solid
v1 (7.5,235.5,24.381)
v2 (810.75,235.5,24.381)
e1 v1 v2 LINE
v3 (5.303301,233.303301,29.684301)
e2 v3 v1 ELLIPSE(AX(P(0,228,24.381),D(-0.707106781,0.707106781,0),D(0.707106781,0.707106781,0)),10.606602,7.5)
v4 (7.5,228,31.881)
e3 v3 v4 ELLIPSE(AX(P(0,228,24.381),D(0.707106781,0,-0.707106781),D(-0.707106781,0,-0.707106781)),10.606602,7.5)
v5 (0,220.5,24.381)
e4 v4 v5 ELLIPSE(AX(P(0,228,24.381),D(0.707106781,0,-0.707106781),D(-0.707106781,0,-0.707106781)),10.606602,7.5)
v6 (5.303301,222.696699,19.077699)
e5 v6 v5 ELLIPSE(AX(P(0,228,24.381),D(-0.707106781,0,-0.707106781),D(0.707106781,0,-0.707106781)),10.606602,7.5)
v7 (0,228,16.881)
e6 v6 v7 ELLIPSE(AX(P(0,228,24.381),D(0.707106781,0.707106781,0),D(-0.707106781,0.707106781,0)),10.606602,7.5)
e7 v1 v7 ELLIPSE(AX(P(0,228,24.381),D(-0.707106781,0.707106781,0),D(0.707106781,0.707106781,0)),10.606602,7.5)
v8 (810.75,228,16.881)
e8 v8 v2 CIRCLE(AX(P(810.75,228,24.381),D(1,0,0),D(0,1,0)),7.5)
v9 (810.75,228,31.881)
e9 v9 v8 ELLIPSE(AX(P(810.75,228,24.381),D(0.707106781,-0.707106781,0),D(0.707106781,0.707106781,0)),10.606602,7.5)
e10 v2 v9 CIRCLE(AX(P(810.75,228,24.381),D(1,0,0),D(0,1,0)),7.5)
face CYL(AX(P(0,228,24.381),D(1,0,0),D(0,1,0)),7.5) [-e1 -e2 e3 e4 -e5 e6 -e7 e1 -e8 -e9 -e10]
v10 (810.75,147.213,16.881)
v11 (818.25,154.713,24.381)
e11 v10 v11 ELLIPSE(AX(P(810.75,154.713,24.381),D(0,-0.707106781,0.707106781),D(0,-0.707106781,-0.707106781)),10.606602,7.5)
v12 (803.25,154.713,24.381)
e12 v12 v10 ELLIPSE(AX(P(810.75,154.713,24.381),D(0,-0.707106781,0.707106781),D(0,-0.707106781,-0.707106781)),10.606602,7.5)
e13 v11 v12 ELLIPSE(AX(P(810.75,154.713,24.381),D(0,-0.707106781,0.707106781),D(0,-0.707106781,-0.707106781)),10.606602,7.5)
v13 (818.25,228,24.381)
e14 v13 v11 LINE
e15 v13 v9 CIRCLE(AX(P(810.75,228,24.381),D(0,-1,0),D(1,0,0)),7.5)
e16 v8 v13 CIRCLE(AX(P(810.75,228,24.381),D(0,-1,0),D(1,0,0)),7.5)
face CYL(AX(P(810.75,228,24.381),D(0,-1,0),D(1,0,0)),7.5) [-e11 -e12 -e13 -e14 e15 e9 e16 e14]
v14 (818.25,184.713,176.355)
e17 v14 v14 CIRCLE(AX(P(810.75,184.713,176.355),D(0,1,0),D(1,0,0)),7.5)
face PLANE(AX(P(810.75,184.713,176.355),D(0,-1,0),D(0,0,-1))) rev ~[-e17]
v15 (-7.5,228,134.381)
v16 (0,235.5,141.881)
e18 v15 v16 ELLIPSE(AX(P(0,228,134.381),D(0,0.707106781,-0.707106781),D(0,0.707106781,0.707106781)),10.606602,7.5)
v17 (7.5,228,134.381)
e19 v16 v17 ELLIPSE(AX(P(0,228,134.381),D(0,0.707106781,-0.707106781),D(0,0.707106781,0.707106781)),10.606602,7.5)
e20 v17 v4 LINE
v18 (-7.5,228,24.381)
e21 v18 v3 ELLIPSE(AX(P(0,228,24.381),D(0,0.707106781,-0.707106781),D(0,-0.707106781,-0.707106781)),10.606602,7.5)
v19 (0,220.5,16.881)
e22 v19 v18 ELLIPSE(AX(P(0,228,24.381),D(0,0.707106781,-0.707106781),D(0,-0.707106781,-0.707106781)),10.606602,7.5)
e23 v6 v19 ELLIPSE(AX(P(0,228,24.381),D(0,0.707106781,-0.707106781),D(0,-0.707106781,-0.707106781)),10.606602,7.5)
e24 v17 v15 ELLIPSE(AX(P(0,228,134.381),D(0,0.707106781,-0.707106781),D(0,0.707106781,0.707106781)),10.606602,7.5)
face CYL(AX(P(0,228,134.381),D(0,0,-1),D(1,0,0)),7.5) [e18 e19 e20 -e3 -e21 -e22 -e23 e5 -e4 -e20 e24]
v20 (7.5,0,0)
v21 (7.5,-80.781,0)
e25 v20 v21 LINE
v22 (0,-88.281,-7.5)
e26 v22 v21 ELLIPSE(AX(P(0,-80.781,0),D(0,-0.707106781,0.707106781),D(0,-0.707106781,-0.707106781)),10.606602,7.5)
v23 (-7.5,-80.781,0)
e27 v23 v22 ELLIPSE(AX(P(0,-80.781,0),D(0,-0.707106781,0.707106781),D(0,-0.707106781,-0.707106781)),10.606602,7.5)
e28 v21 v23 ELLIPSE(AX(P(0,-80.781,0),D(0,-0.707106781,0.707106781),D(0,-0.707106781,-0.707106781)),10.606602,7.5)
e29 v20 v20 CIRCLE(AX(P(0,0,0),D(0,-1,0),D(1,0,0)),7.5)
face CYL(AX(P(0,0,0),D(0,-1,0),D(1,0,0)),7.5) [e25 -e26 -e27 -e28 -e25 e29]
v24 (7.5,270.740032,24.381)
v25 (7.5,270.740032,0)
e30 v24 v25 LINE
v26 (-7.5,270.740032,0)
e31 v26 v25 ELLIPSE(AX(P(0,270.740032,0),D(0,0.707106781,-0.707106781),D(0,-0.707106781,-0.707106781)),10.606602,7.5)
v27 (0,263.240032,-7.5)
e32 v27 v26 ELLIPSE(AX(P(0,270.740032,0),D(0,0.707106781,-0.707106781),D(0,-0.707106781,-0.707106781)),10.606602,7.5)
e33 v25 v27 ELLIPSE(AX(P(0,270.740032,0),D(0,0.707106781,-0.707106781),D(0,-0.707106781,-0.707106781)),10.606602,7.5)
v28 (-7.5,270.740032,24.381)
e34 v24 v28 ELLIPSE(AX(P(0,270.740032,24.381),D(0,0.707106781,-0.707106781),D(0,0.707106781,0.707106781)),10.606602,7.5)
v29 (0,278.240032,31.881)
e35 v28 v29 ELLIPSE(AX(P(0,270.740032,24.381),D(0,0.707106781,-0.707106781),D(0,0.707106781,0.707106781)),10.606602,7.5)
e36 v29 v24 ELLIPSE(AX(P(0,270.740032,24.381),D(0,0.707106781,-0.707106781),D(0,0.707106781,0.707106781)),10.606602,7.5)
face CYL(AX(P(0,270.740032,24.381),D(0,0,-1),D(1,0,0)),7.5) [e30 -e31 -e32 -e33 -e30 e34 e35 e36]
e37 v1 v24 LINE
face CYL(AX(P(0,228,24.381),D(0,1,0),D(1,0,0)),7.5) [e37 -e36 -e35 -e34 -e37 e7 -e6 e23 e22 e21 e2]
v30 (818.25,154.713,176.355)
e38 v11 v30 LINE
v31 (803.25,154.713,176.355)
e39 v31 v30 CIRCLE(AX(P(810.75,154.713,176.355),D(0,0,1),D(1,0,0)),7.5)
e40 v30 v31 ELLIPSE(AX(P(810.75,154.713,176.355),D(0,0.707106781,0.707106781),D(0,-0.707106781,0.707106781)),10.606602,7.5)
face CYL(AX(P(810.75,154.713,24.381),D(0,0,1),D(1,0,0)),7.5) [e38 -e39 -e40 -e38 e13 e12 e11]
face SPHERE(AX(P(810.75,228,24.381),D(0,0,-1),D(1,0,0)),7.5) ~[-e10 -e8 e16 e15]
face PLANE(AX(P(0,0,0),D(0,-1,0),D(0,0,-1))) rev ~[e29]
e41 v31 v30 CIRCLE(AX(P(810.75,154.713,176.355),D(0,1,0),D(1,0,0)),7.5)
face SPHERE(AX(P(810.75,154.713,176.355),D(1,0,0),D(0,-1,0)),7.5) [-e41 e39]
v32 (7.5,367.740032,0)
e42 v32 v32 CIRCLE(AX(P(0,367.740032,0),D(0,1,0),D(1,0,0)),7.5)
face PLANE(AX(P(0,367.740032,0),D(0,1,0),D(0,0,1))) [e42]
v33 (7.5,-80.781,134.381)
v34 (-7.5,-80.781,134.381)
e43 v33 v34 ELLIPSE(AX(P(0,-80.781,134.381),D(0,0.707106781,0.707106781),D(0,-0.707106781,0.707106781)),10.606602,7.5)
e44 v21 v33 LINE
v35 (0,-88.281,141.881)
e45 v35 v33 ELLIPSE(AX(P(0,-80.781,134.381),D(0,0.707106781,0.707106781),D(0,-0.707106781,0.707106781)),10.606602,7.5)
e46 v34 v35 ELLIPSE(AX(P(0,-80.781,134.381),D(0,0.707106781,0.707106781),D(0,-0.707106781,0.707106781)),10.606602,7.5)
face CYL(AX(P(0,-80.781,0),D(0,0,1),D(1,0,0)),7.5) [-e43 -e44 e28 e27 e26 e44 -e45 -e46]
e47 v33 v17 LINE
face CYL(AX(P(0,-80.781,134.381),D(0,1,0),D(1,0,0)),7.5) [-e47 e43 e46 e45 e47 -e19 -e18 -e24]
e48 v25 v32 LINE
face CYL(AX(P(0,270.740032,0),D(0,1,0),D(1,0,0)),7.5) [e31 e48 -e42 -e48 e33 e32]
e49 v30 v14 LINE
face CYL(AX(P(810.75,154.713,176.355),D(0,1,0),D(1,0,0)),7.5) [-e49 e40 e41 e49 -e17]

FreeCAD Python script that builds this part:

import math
import FreeCAD as App
import Part
import Sketcher
Q = App.Units.Quantity

doc = App.newDocument("Part")
body = doc.addObject("PartDesign::Body", "Body")

# Sketch on XZ plane
sketch1 = body.newObject("Sketcher::SketchObject", "Sketch")
sketch1.AttachmentSupport = (doc.getObject("XZ_Plane"), [""])
sketch1.MapMode = "FlatFace"
sketch1.addGeometry(Part.Circle(App.Vector(0, 0, 0), App.Vector(0, 0, 1), 8), False)
sketch1.addConstraint([
    Sketcher.Constraint("Coincident", 0, 3, -1, 1),
    Sketcher.Constraint("Diameter", 0, Q("15 mm")),
])

# Sketch on YZ plane
sketch2 = body.newObject("Sketcher::SketchObject", "Sketch001")
sketch2.AttachmentSupport = (doc.getObject("YZ_Plane"), [""])
sketch2.MapMode = "FlatFace"
sketch2.addGeometry([
    Part.LineSegment(App.Vector(0, 0, 0), App.Vector(-81, 0, 0)),  # 0
    Part.LineSegment(App.Vector(-81, 0, 0), App.Vector(-81, 134, 0)),  # 1
    Part.LineSegment(App.Vector(-81, 134, 0), App.Vector(228, 134, 0)),  # 2
    Part.LineSegment(App.Vector(228, 134, 0), App.Vector(228, 24, 0)),  # 3
    Part.LineSegment(App.Vector(228, 24, 0), App.Vector(271, 24, 0)),  # 4
    Part.LineSegment(App.Vector(271, 24, 0), App.Vector(271, 0, 0)),  # 5
    Part.LineSegment(App.Vector(271, 0, 0), App.Vector(368, 0, 0)),  # 6
], False)
sketch2.addConstraint([
    Sketcher.Constraint("Coincident", 0, 2, 1, 1),
    Sketcher.Constraint("Coincident", 1, 2, 2, 1),
    Sketcher.Constraint("Coincident", 2, 2, 3, 1),
    Sketcher.Constraint("Coincident", 3, 2, 4, 1),
    Sketcher.Constraint("Coincident", 4, 2, 5, 1),
    Sketcher.Constraint("Coincident", 5, 2, 6, 1),
    Sketcher.Constraint("Horizontal", 0),
    Sketcher.Constraint("Vertical", 1),
    Sketcher.Constraint("Horizontal", 2),
    Sketcher.Constraint("Vertical", 3),
    Sketcher.Constraint("Horizontal", 4),
    Sketcher.Constraint("Vertical", 5),
    Sketcher.Constraint("Horizontal", 6),
    Sketcher.Constraint("Coincident", 0, 1, -1, 1),
    Sketcher.Constraint("PointOnObject", 5, 2, -1),
    Sketcher.Constraint("DistanceX", 6, 1, 6, 2, Q("97 mm")),
    Sketcher.Constraint("DistanceY", 3, 2, 3, 1, Q("110 mm")),
    Sketcher.Constraint("DistanceX", -1, 1, 2, 2, Q("228 mm")),
    Sketcher.Constraint("DistanceX", 0, 2, 0, 1, Q("80.781 mm")),
    Sketcher.Constraint("DistanceY", 1, 1, 1, 2, Q("134.381 mm")),
    Sketcher.Constraint("DistanceX", 4, 1, 4, 2, Q("42.740032 mm")),
])
doc.recompute()

additivepipe = body.newObject("PartDesign::AdditivePipe", "AdditivePipe")
additivepipe.Profile = sketch1
additivepipe.Spine = (sketch2, ["Edge1", "Edge2", "Edge3", "Edge4", "Edge5", "Edge6", "Edge7"])
additivepipe.Transition = "Right corner"

# Sketch on YZ plane
sketch3 = body.newObject("Sketcher::SketchObject", "Sketch002")
sketch3.AttachmentSupport = (doc.getObject("YZ_Plane"), [""])
sketch3.MapMode = "FlatFace"
sketch3.addGeometry(Part.Circle(App.Vector(228, 24, 0), App.Vector(0, 0, 1), 8), False)
sketch3.addConstraint([
    Sketcher.Constraint("Diameter", 0, Q("15 mm")),
    Sketcher.Constraint("DistanceX", -1, 1, 0, 3, Q("228 mm")),
    Sketcher.Constraint("DistanceY", -1, 1, 0, 3, Q("24.381 mm")),
])

# Sketch on XY plane
sketch4 = body.newObject("Sketcher::SketchObject", "Sketch003")
sketch4.AttachmentSupport = (doc.getObject("XY_Plane"), [""])
sketch4.MapMode = "FlatFace"
sketch4.addGeometry(Part.LineSegment(App.Vector(0, 0, 0), App.Vector(811, 0, 0)), False)
sketch4.addConstraint([
    Sketcher.Constraint("Horizontal", 0),
    Sketcher.Constraint("Coincident", 0, 1, -1, 1),
    Sketcher.Constraint("DistanceX", 0, 1, 0, 2, Q("810.75 mm")),
])
doc.recompute()

additivepipe2 = body.newObject("PartDesign::AdditivePipe", "AdditivePipe001")
additivepipe2.Profile = sketch3
additivepipe2.Spine = (sketch4, ["Edge1"])

# Sketch on XZ plane
sketch5 = body.newObject("Sketcher::SketchObject", "Sketch004")
sketch5.AttachmentSupport = (doc.getObject("XZ_Plane"), [""])
sketch5.MapMode = "FlatFace"
sketch5.AttachmentOffset = App.Placement(App.Vector(0, 0, -228), App.Rotation())
sketch5.addGeometry(Part.Circle(App.Vector(811, 24, 0), App.Vector(0, 0, 1), 8), False)
sketch5.addConstraint([
    Sketcher.Constraint("Diameter", 0, Q("15 mm")),
    Sketcher.Constraint("DistanceX", -1, 1, 0, 3, Q("810.75 mm")),
    Sketcher.Constraint("DistanceY", -1, 1, 0, 3, Q("24.381 mm")),
])

# Sketch on YZ plane
sketch6 = body.newObject("Sketcher::SketchObject", "Sketch005")
sketch6.AttachmentSupport = (doc.getObject("YZ_Plane"), [""])
sketch6.MapMode = "FlatFace"
sketch6.addGeometry([
    Part.LineSegment(App.Vector(228, 24, 0), App.Vector(155, 24, 0)),
    Part.LineSegment(App.Vector(155, 24, 0), App.Vector(155, 176, 0)),
], False)
sketch6.addConstraint([
    Sketcher.Constraint("Coincident", 0, 2, 1, 1),
    Sketcher.Constraint("Horizontal", 0),
    Sketcher.Constraint("Vertical", 1),
    Sketcher.Constraint("DistanceX", -1, 1, 0, 1, Q("228 mm")),
    Sketcher.Constraint("DistanceX", 0, 2, 0, 1, Q("73.287 mm")),
    Sketcher.Constraint("DistanceY", 1, 1, 1, 2, Q("151.974 mm")),
    Sketcher.Constraint("DistanceY", -1, 1, 0, 1, Q("24.381 mm")),
])
doc.recompute()

additivepipe3 = body.newObject("PartDesign::AdditivePipe", "AdditivePipe002")
additivepipe3.Profile = sketch5
additivepipe3.Spine = (sketch6, ["Edge1", "Edge2"])
additivepipe3.Transition = "Right corner"

# Sketch on XZ plane
sketch7 = body.newObject("Sketcher::SketchObject", "Sketch006")
sketch7.AttachmentSupport = (doc.getObject("XZ_Plane"), [""])
sketch7.MapMode = "FlatFace"
sketch7.AttachmentOffset = App.Placement(App.Vector(0, 0, -228), App.Rotation())
sketch7.addGeometry([
    Part.LineSegment(App.Vector(811, 17, 0), App.Vector(811, 32, 0)),
    Part.ArcOfCircle(Part.Circle(App.Vector(811, 24, 0), App.Vector(0, 0, 1), 8), math.radians(-90), math.radians(90)),
], False)
sketch7.addGeometry(Part.LineSegment(App.Vector(811, 17, 0), App.Vector(811, 32, 0)), True)  # axis
sketch7.addConstraint([
    Sketcher.Constraint("Coincident", 0, 1, 1, 1),
    Sketcher.Constraint("Coincident", 1, 2, 0, 2),
    Sketcher.Constraint("Vertical", 0),
    Sketcher.Constraint("Vertical", 2),
    Sketcher.Constraint("Coincident", 2, 1, 0, 1),
    Sketcher.Constraint("Vertical", 1, 3, 0, 1),
    Sketcher.Constraint("Equal", 0, 2),
    Sketcher.Constraint("Radius", 1, Q("7.5 mm")),
    Sketcher.Constraint("DistanceX", -1, 1, 1, 3, Q("810.75 mm")),
    Sketcher.Constraint("DistanceY", -1, 1, 1, 3, Q("24.381 mm")),
])
revolution = body.newObject("PartDesign::Revolution", "Revolution")
revolution.Profile = sketch7
revolution.ReferenceAxis = (sketch7, ["Axis0"])
revolution.Angle = 360

# Sketch on XZ plane
sketch8 = body.newObject("Sketcher::SketchObject", "Sketch007")
sketch8.AttachmentSupport = (doc.getObject("XZ_Plane"), [""])
sketch8.MapMode = "FlatFace"
sketch8.AttachmentOffset = App.Placement(App.Vector(0, 0, -154.713), App.Rotation())
sketch8.addGeometry(Part.Circle(App.Vector(811, 176, 0), App.Vector(0, 0, 1), 8), False)
sketch8.addConstraint([
    Sketcher.Constraint("Diameter", 0, Q("15 mm")),
    Sketcher.Constraint("DistanceX", -1, 1, 0, 3, Q("810.75 mm")),
    Sketcher.Constraint("DistanceY", -1, 1, 0, 3, Q("176.355 mm")),
])

# Sketch on XY plane
sketch9 = body.newObject("Sketcher::SketchObject", "Sketch008")
sketch9.AttachmentSupport = (doc.getObject("XY_Plane"), [""])
sketch9.MapMode = "FlatFace"
sketch9.addGeometry(Part.LineSegment(App.Vector(862, 155, 0), App.Vector(862, 185, 0)), False)
sketch9.addConstraint([
    Sketcher.Constraint("Vertical", 0),
    Sketcher.Constraint("DistanceY", 0, 1, 0, 2, Q("30 mm")),
    Sketcher.Constraint("DistanceX", -1, 1, 0, 1, Q("862 mm")),
    Sketcher.Constraint("DistanceY", -1, 1, 0, 1, Q("154.713 mm")),
])
doc.recompute()

additivepipe4 = body.newObject("PartDesign::AdditivePipe", "AdditivePipe003")
additivepipe4.Profile = sketch8
additivepipe4.Spine = (sketch9, ["Edge1"])

# Sketch on XY plane
sketch10 = body.newObject("Sketcher::SketchObject", "Sketch009")
sketch10.AttachmentSupport = (doc.getObject("XY_Plane"), [""])
sketch10.MapMode = "FlatFace"
sketch10.AttachmentOffset = App.Placement(App.Vector(0, 0, 176.355), App.Rotation())
sketch10.addGeometry([
    Part.ArcOfCircle(Part.Circle(App.Vector(811, 155, 0), App.Vector(0, 0, 1), 8), math.radians(180), math.radians(360)),
    Part.LineSegment(App.Vector(818, 155, 0), App.Vector(803, 155, 0)),
], False)
sketch10.addGeometry(Part.LineSegment(App.Vector(803, 155, 0), App.Vector(818, 155, 0)), True)  # axis
sketch10.addConstraint([
    Sketcher.Constraint("Coincident", 0, 1, 1, 2),
    Sketcher.Constraint("Coincident", 1, 1, 0, 2),
    Sketcher.Constraint("Horizontal", 1),
    Sketcher.Constraint("Horizontal", 2),
    Sketcher.Constraint("Coincident", 2, 1, 0, 1),
    Sketcher.Constraint("Equal", 1, 2),
    Sketcher.Constraint("Radius", 0, Q("7.5 mm")),
    Sketcher.Constraint("DistanceX", -1, 1, 0, 3, Q("810.75 mm")),
    Sketcher.Constraint("DistanceY", -1, 1, 0, 3, Q("154.713 mm")),
    Sketcher.Constraint("DistanceY", -1, 1, 0, 1, Q("154.713 mm")),
])
revolution2 = body.newObject("PartDesign::Revolution", "Revolution001")
revolution2.Profile = sketch10
revolution2.ReferenceAxis = (sketch10, ["Axis0"])
revolution2.Angle = 360

doc.recompute()
